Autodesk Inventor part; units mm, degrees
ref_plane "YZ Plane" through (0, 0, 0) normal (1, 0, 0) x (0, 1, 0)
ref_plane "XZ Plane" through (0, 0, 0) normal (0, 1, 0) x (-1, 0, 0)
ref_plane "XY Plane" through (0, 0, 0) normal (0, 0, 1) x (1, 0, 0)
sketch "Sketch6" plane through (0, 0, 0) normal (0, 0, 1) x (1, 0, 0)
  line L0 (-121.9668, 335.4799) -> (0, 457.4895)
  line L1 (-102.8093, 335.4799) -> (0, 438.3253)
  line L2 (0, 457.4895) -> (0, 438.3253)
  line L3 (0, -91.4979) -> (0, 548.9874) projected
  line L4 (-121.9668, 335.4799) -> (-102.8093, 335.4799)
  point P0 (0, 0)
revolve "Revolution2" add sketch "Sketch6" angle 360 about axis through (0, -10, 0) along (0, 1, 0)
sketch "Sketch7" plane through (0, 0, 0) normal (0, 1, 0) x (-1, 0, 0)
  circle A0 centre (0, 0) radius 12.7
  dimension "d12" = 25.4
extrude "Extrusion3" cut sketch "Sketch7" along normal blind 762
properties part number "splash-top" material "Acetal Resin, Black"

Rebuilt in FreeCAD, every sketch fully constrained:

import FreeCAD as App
import Part
import Sketcher
from FreeCAD import Vector
Q = App.Units.Quantity

doc = App.newDocument("Part")
params = doc.addObject("Spreadsheet::Sheet", "Params")
for row, (alias, value) in enumerate([
    ("revolution_angle", "360 deg"),
    ("sketch2_diameter", "1 in"),
    ("pocket1_length", "30 in"),
], start=1):
    params.set(f"A{row}", alias)
    params.set(f"B{row}", "=" + value)
    params.setAlias(f"B{row}", alias)

body = doc.addObject("PartDesign::Body", "Body")

# Sketch on XY plane
sketch1 = doc.addObject("Sketcher::SketchObject", "Sketch")
body.addObject(sketch1)
sketch1.AttachmentSupport = (doc.XY_Plane, [""])
sketch1.MapMode = "FlatFace"
sketch1.addGeometry([
    Part.LineSegment(Vector(0, 457, 0), Vector(-122, 335, 0)),
    Part.LineSegment(Vector(-122, 335, 0), Vector(-103, 335, 0)),
    Part.LineSegment(Vector(-103, 335, 0), Vector(0, 438, 0)),
    Part.LineSegment(Vector(0, 438, 0), Vector(0, 457, 0)),
], False)
sketch1.addConstraint([
    Sketcher.Constraint("Coincident", 0, 2, 1, 1),
    Sketcher.Constraint("Coincident", 1, 2, 2, 1),
    Sketcher.Constraint("Coincident", 2, 2, 3, 1),
    Sketcher.Constraint("Coincident", 3, 2, 0, 1),
    Sketcher.Constraint("Horizontal", 1),
    Sketcher.Constraint("Vertical", 3),
    Sketcher.Constraint("PointOnObject", 2, 2, -2),
    Sketcher.Constraint("Parallel", 0, 2),
    Sketcher.Constraint("Angle", 0, Q("-134.99 deg")),
    Sketcher.Constraint("DistanceY", 3, 1, 3, 2, Q("0.7545 in")),
    Sketcher.Constraint("Distance", 2, Q("5.7252 in")),
    Sketcher.Constraint("DistanceY", -1, 1, 2, 2, Q("17.2569 in")),
])
revolution = doc.addObject("PartDesign::Revolution", "Revolution")
body.addObject(revolution)
revolution.Profile = sketch1
revolution.ReferenceAxis = (sketch1, ["V_Axis"])
revolution.setExpression("Angle", "Params.revolution_angle")

# Sketch on XZ plane
sketch2 = doc.addObject("Sketcher::SketchObject", "Sketch001")
body.addObject(sketch2)
sketch2.AttachmentSupport = (doc.XZ_Plane, [""])
sketch2.MapMode = "FlatFace"
sketch2.addGeometry(Part.Circle(Vector(0, 0, 0), Vector(0, 0, 1), 13), False)
sketch2.addConstraint([
    Sketcher.Constraint("Coincident", 0, 3, -1, 1),
    Sketcher.Constraint("Diameter", 0, Q("1 in")),
])
sketch2.setExpression("Constraints[1]", "Params.sketch2_diameter")
pocket1 = doc.addObject("PartDesign::Pocket", "Pocket")
body.addObject(pocket1)
pocket1.Profile = sketch2
pocket1.setExpression("Length", "Params.pocket1_length")

doc.recompute()
